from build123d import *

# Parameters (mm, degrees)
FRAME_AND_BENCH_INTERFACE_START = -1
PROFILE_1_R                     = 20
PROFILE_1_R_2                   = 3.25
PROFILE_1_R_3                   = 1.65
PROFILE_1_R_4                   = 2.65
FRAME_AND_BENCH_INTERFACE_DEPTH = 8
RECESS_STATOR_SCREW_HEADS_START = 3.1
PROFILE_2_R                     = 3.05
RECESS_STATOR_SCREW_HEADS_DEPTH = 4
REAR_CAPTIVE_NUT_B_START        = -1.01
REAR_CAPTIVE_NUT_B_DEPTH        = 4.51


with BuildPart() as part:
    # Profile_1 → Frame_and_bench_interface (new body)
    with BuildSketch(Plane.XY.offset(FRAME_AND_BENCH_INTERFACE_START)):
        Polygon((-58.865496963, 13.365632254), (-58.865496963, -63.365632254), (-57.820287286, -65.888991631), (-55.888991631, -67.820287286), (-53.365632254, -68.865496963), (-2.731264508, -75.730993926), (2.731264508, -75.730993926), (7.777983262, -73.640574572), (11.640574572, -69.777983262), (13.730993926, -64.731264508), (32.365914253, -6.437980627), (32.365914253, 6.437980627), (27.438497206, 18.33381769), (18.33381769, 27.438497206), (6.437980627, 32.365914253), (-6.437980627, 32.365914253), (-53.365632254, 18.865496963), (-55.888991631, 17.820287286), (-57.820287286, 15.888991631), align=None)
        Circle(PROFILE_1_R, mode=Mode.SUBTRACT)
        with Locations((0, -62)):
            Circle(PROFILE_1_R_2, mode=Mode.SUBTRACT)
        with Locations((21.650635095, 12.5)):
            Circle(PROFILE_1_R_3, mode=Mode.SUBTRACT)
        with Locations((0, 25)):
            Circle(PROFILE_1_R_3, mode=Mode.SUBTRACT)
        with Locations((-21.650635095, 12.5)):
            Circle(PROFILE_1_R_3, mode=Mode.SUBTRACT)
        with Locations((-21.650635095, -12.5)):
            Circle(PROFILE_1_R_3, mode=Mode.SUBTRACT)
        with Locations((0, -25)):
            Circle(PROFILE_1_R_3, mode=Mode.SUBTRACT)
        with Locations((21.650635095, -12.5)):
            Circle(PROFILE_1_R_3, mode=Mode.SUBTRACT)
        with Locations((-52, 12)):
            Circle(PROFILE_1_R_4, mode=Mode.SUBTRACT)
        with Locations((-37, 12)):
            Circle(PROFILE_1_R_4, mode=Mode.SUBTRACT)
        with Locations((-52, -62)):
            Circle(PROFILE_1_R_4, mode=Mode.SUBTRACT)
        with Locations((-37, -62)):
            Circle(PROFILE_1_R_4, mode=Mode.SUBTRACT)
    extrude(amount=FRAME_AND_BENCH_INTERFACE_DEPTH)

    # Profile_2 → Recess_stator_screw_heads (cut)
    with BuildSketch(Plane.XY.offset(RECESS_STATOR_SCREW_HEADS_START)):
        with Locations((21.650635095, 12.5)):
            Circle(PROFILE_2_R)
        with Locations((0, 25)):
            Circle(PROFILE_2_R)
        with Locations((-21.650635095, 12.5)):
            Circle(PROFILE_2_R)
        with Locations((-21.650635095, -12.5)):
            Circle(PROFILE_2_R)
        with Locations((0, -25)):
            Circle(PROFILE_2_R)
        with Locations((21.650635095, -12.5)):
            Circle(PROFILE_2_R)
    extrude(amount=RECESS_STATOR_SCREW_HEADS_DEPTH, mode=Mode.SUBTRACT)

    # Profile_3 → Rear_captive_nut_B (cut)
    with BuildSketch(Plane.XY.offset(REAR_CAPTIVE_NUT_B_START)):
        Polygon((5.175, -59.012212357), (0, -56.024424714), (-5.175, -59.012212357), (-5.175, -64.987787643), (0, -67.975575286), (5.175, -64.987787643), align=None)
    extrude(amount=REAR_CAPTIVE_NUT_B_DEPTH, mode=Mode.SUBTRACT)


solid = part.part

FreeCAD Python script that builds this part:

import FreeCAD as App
import Part
import Sketcher
from FreeCAD import Vector
Q = App.Units.Quantity

doc = App.newDocument("Part")
body = doc.addObject("PartDesign::Body", "Body")

sketch1 = body.newObject("Sketcher::SketchObject", "Sketch")
sketch1.AttachmentSupport = (doc.getObject("XY_Plane"), [""])
sketch1.MapMode = "FlatFace"
sketch1.AttachmentOffset = App.Placement(Vector(0, 0, -1), App.Rotation())
sketch1.addGeometry(Part.LineSegment(Vector(-58.9, 13.4, 0), Vector(-58.9, -63.4, 0)), False)
sketch1.addGeometry(Part.LineSegment(Vector(-58.9, -63.4, 0), Vector(-57.8, -65.9, 0)), False)
sketch1.addGeometry(Part.LineSegment(Vector(-57.8, -65.9, 0), Vector(-55.9, -67.8, 0)), False)
sketch1.addGeometry(Part.LineSegment(Vector(-55.9, -67.8, 0), Vector(-53.4, -68.9, 0)), False)
sketch1.addGeometry(Part.LineSegment(Vector(-53.4, -68.9, 0), Vector(-2.7, -75.7, 0)), False)
sketch1.addGeometry(Part.LineSegment(Vector(-2.7, -75.7, 0), Vector(2.7, -75.7, 0)), False)
sketch1.addGeometry(Part.LineSegment(Vector(2.7, -75.7, 0), Vector(7.8, -73.6, 0)), False)
sketch1.addGeometry(Part.LineSegment(Vector(7.8, -73.6, 0), Vector(11.6, -69.8, 0)), False)
sketch1.addGeometry(Part.LineSegment(Vector(11.6, -69.8, 0), Vector(13.7, -64.7, 0)), False)
sketch1.addGeometry(Part.LineSegment(Vector(13.7, -64.7, 0), Vector(32.4, -6.4, 0)), False)
sketch1.addGeometry(Part.LineSegment(Vector(32.4, -6.4, 0), Vector(32.4, 6.4, 0)), False)
sketch1.addGeometry(Part.LineSegment(Vector(32.4, 6.4, 0), Vector(27.4, 18.3, 0)), False)
sketch1.addGeometry(Part.LineSegment(Vector(27.4, 18.3, 0), Vector(18.3, 27.4, 0)), False)
sketch1.addGeometry(Part.LineSegment(Vector(18.3, 27.4, 0), Vector(6.4, 32.4, 0)), False)
sketch1.addGeometry(Part.LineSegment(Vector(6.4, 32.4, 0), Vector(-6.4, 32.4, 0)), False)
sketch1.addGeometry(Part.LineSegment(Vector(-6.4, 32.4, 0), Vector(-53.4, 18.9, 0)), False)
sketch1.addGeometry(Part.LineSegment(Vector(-53.4, 18.9, 0), Vector(-55.9, 17.8, 0)), False)
sketch1.addGeometry(Part.LineSegment(Vector(-55.9, 17.8, 0), Vector(-57.8, 15.9, 0)), False)
sketch1.addGeometry(Part.LineSegment(Vector(-57.8, 15.9, 0), Vector(-58.9, 13.4, 0)), False)
sketch1.addGeometry(Part.Circle(Vector(-52, -62, 0), Vector(0, 0, 1), 2.6), False)
sketch1.addGeometry(Part.Circle(Vector(-37, -62, 0), Vector(0, 0, 1), 2.6), False)
sketch1.addGeometry(Part.Circle(Vector(0, -62, 0), Vector(0, 0, 1), 3.2), False)
sketch1.addGeometry(Part.Circle(Vector(0, -25, 0), Vector(0, 0, 1), 1.6), False)
sketch1.addGeometry(Part.Circle(Vector(-21.7, -12.5, 0), Vector(0, 0, 1), 1.6), False)
sketch1.addGeometry(Part.Circle(Vector(-52, 12, 0), Vector(0, 0, 1), 2.6), False)
sketch1.addGeometry(Part.Circle(Vector(-37, 12, 0), Vector(0, 0, 1), 2.6), False)
sketch1.addGeometry(Part.Circle(Vector(-21.7, 12.5, 0), Vector(0, 0, 1), 1.6), False)
sketch1.addGeometry(Part.Circle(Vector(0, 0, 0), Vector(0, 0, 1), 20), False)
sketch1.addGeometry(Part.Circle(Vector(21.7, -12.5, 0), Vector(0, 0, 1), 1.6), False)
sketch1.addGeometry(Part.Circle(Vector(0, 25, 0), Vector(0, 0, 1), 1.6), False)
sketch1.addGeometry(Part.Circle(Vector(21.7, 12.5, 0), Vector(0, 0, 1), 1.6), False)
sketch1.addConstraint(Sketcher.Constraint("Coincident", 0, 2, 1, 1))
sketch1.addConstraint(Sketcher.Constraint("Coincident", 1, 2, 2, 1))
sketch1.addConstraint(Sketcher.Constraint("Coincident", 2, 2, 3, 1))
sketch1.addConstraint(Sketcher.Constraint("Coincident", 3, 2, 4, 1))
sketch1.addConstraint(Sketcher.Constraint("Coincident", 4, 2, 5, 1))
sketch1.addConstraint(Sketcher.Constraint("Coincident", 5, 2, 6, 1))
sketch1.addConstraint(Sketcher.Constraint("Coincident", 6, 2, 7, 1))
sketch1.addConstraint(Sketcher.Constraint("Coincident", 7, 2, 8, 1))
sketch1.addConstraint(Sketcher.Constraint("Coincident", 8, 2, 9, 1))
sketch1.addConstraint(Sketcher.Constraint("Coincident", 9, 2, 10, 1))
sketch1.addConstraint(Sketcher.Constraint("Coincident", 10, 2, 11, 1))
sketch1.addConstraint(Sketcher.Constraint("Coincident", 11, 2, 12, 1))
sketch1.addConstraint(Sketcher.Constraint("Coincident", 12, 2, 13, 1))
sketch1.addConstraint(Sketcher.Constraint("Coincident", 13, 2, 14, 1))
sketch1.addConstraint(Sketcher.Constraint("Coincident", 14, 2, 15, 1))
sketch1.addConstraint(Sketcher.Constraint("Coincident", 15, 2, 16, 1))
sketch1.addConstraint(Sketcher.Constraint("Coincident", 16, 2, 17, 1))
sketch1.addConstraint(Sketcher.Constraint("Coincident", 17, 2, 18, 1))
sketch1.addConstraint(Sketcher.Constraint("Coincident", 18, 2, 0, 1))
sketch1.addConstraint(Sketcher.Constraint("Vertical", 0))
sketch1.addConstraint(Sketcher.Constraint("Horizontal", 5))
sketch1.addConstraint(Sketcher.Constraint("Vertical", 10))
sketch1.addConstraint(Sketcher.Constraint("Horizontal", 14))
sketch1.addConstraint(Sketcher.Constraint("Coincident", 27, 3, -1, 1))
sketch1.addConstraint(Sketcher.Constraint("Equal", 19, 20))
sketch1.addConstraint(Sketcher.Constraint("Equal", 22, 23))
sketch1.addConstraint(Sketcher.Constraint("Equal", 20, 24))
sketch1.addConstraint(Sketcher.Constraint("Equal", 24, 25))
sketch1.addConstraint(Sketcher.Constraint("Equal", 23, 26))
sketch1.addConstraint(Sketcher.Constraint("Equal", 26, 28))
sketch1.addConstraint(Sketcher.Constraint("Equal", 28, 29))
sketch1.addConstraint(Sketcher.Constraint("Equal", 29, 30))
sketch1.addConstraint(Sketcher.Constraint("Symmetric", 26, 3, 28, 3, -1, 1))
sketch1.addConstraint(Sketcher.Constraint("Symmetric", 22, 3, 29, 3, -1, 1))
sketch1.addConstraint(Sketcher.Constraint("Symmetric", 23, 3, 30, 3, -1, 1))
sketch1.addConstraint(Sketcher.Constraint("Symmetric", 23, 3, 28, 3, -2))
sketch1.addConstraint(Sketcher.Constraint("PointOnObject", 21, 3, -2))
sketch1.addConstraint(Sketcher.Constraint("PointOnObject", 22, 3, -2))
sketch1.addConstraint(Sketcher.Constraint("Perpendicular", 1, 6))
sketch1.addConstraint(Sketcher.Constraint("Perpendicular", 2, 7))
sketch1.addConstraint(Sketcher.Constraint("Perpendicular", 3, 8))
sketch1.addConstraint(Sketcher.Constraint("Perpendicular", 6, 11))
sketch1.addConstraint(Sketcher.Constraint("Perpendicular", 7, 12))
sketch1.addConstraint(Sketcher.Constraint("Perpendicular", 8, 13))
sketch1.addConstraint(Sketcher.Constraint("Perpendicular", 11, 16))
sketch1.addConstraint(Sketcher.Constraint("Perpendicular", 12, 17))
sketch1.addConstraint(Sketcher.Constraint("Perpendicular", 13, 18))
sketch1.addConstraint(Sketcher.Constraint("Horizontal", 19, 3, 20, 3))
sketch1.addConstraint(Sketcher.Constraint("Horizontal", 20, 3, 21, 3))
sketch1.addConstraint(Sketcher.Constraint("Horizontal", 24, 3, 25, 3))
sketch1.addConstraint(Sketcher.Constraint("Vertical", 19, 3, 24, 3))
sketch1.addConstraint(Sketcher.Constraint("Vertical", 20, 3, 25, 3))
sketch1.addConstraint(Sketcher.Constraint("Vertical", 3, 2, 15, 2))
sketch1.addConstraint(Sketcher.Constraint("Vertical", 2, 2, 16, 2))
sketch1.addConstraint(Sketcher.Constraint("Vertical", 1, 2, 17, 2))
sketch1.addConstraint(Sketcher.Constraint("Equal", 14, 10))
sketch1.addConstraint(Sketcher.Constraint("Equal", 1, 2))
sketch1.addConstraint(Sketcher.Constraint("Equal", 2, 3))
sketch1.addConstraint(Sketcher.Constraint("Equal", 6, 7))
sketch1.addConstraint(Sketcher.Constraint("Equal", 7, 8))
sketch1.addConstraint(Sketcher.Constraint("Equal", 11, 12))
sketch1.addConstraint(Sketcher.Constraint("Equal", 12, 13))
sketch1.addConstraint(Sketcher.Constraint("Equal", 3, 16))
sketch1.addConstraint(Sketcher.Constraint("Equal", 16, 17))
sketch1.addConstraint(Sketcher.Constraint("Diameter", 27, 40.0))
sketch1.addConstraint(Sketcher.Constraint("Diameter", 19, 5.3))
sketch1.addConstraint(Sketcher.Constraint("Diameter", 21, 6.5))
sketch1.addConstraint(Sketcher.Constraint("Diameter", 22, 3.3))
sketch1.addConstraint(Sketcher.Constraint("DistanceX", 19, 3, -1, 1, 52.0))
sketch1.addConstraint(Sketcher.Constraint("DistanceY", 19, 3, -1, 1, 62.0))
sketch1.addConstraint(Sketcher.Constraint("DistanceX", 20, 3, -1, 1, 37.0))
sketch1.addConstraint(Sketcher.Constraint("DistanceY", 22, 3, -1, 1, 25.0))
sketch1.addConstraint(Sketcher.Constraint("DistanceY", -1, 1, 24, 3, 12.0))
sketch1.addConstraint(Sketcher.Constraint("Angle", 1, Q("-67.5 deg")))
sketch1.addConstraint(Sketcher.Constraint("DistanceY", 23, 3, 26, 3, 25.0))
sketch1.addConstraint(Sketcher.Constraint("DistanceX", 5, 1, 5, 2, 5.462529))
sketch1.addConstraint(Sketcher.Constraint("DistanceX", 14, 2, 14, 1, 12.875961))
sketch1.addConstraint(Sketcher.Constraint("DistanceY", 9, 2, 11, 2, 24.771798))
sketch1.addConstraint(Sketcher.Constraint("Distance", 6, 5.462529))
sketch1.addConstraint(Sketcher.Constraint("Distance", 15, 48.830992))
sketch1.addConstraint(Sketcher.Constraint("DistanceY", 0, 2, 0, 1, 76.731265))
sketch1.addConstraint(Sketcher.Constraint("DistanceY", 1, 2, -1, 1, 65.888992))
sketch1.addConstraint(Sketcher.Constraint("DistanceX", 2, 2, -1, 1, 55.888992))
sketch1.addConstraint(Sketcher.Constraint("DistanceY", 9, 2, -1, 1, 6.437981))
sketch1.addConstraint(Sketcher.Constraint("DistanceX", -1, 1, 13, 2, 6.437981))
sketch1.addConstraint(Sketcher.Constraint("DistanceX", 23, 3, 28, 3, 43.30127))
sketch1.addConstraint(Sketcher.Constraint("Distance", 4, 51.097693))
sketch1.addConstraint(Sketcher.Constraint("Distance", 9, 61.199405))
pad1 = body.newObject("PartDesign::Pad", "Pad")
pad1.Profile = sketch1
pad1.Length = 8

sketch2 = body.newObject("Sketcher::SketchObject", "Sketch001")
sketch2.AttachmentSupport = (doc.getObject("XY_Plane"), [""])
sketch2.MapMode = "FlatFace"
sketch2.AttachmentOffset = App.Placement(Vector(0, 0, 3.1), App.Rotation())
sketch2.addGeometry(Part.Circle(Vector(21.7, 12.5, 0), Vector(0, 0, 1), 3), False)
sketch2.addGeometry(Part.Circle(Vector(0, 25, 0), Vector(0, 0, 1), 3), False)
sketch2.addGeometry(Part.Circle(Vector(-21.7, 12.5, 0), Vector(0, 0, 1), 3), False)
sketch2.addGeometry(Part.Circle(Vector(-21.7, -12.5, 0), Vector(0, 0, 1), 3), False)
sketch2.addGeometry(Part.Circle(Vector(0, -25, 0), Vector(0, 0, 1), 3), False)
sketch2.addGeometry(Part.Circle(Vector(21.7, -12.5, 0), Vector(0, 0, 1), 3), False)
sketch2.addConstraint(Sketcher.Constraint("Equal", 0, 1))
sketch2.addConstraint(Sketcher.Constraint("Equal", 1, 2))
sketch2.addConstraint(Sketcher.Constraint("Equal", 2, 3))
sketch2.addConstraint(Sketcher.Constraint("Equal", 3, 4))
sketch2.addConstraint(Sketcher.Constraint("Equal", 4, 5))
sketch2.addConstraint(Sketcher.Constraint("Symmetric", 0, 3, 3, 3, -1, 1))
sketch2.addConstraint(Sketcher.Constraint("Symmetric", 1, 3, 4, 3, -1, 1))
sketch2.addConstraint(Sketcher.Constraint("Symmetric", 2, 3, 5, 3, -1, 1))
sketch2.addConstraint(Sketcher.Constraint("Symmetric", 0, 3, 2, 3, -2))
sketch2.addConstraint(Sketcher.Constraint("PointOnObject", 1, 3, -2))
sketch2.addConstraint(Sketcher.Constraint("Diameter", 0, 6.1))
sketch2.addConstraint(Sketcher.Constraint("DistanceY", -1, 1, 1, 3, 25.0))
sketch2.addConstraint(Sketcher.Constraint("DistanceY", 3, 3, 2, 3, 25.0))
sketch2.addConstraint(Sketcher.Constraint("DistanceX", 2, 3, 0, 3, 43.30127))
pocket1 = body.newObject("PartDesign::Pocket", "Pocket")
pocket1.Profile = sketch2
pocket1.Length = 4
pocket1.Reversed = True

sketch3 = body.newObject("Sketcher::SketchObject", "Sketch002")
sketch3.AttachmentSupport = (doc.getObject("XY_Plane"), [""])
sketch3.MapMode = "FlatFace"
sketch3.AttachmentOffset = App.Placement(Vector(0, 0, -1.01), App.Rotation())
sketch3.addGeometry(Part.LineSegment(Vector(5, -59, 0), Vector(0, -56, 0)), False)
sketch3.addGeometry(Part.LineSegment(Vector(0, -56, 0), Vector(-5, -59, 0)), False)
sketch3.addGeometry(Part.LineSegment(Vector(-5, -59, 0), Vector(-5, -65, 0)), False)
sketch3.addGeometry(Part.LineSegment(Vector(-5, -65, 0), Vector(0, -68, 0)), False)
sketch3.addGeometry(Part.LineSegment(Vector(0, -68, 0), Vector(5, -65, 0)), False)
sketch3.addGeometry(Part.LineSegment(Vector(5, -65, 0), Vector(5, -59, 0)), False)
sketch3.addConstraint(Sketcher.Constraint("Coincident", 0, 2, 1, 1))
sketch3.addConstraint(Sketcher.Constraint("Coincident", 1, 2, 2, 1))
sketch3.addConstraint(Sketcher.Constraint("Coincident", 2, 2, 3, 1))
sketch3.addConstraint(Sketcher.Constraint("Coincident", 3, 2, 4, 1))
sketch3.addConstraint(Sketcher.Constraint("Coincident", 4, 2, 5, 1))
sketch3.addConstraint(Sketcher.Constraint("Coincident", 5, 2, 0, 1))
sketch3.addConstraint(Sketcher.Constraint("Vertical", 2))
sketch3.addConstraint(Sketcher.Constraint("Vertical", 5))
sketch3.addConstraint(Sketcher.Constraint("Symmetric", 2, 2, 4, 2, -2))
sketch3.addConstraint(Sketcher.Constraint("PointOnObject", 0, 2, -2))
sketch3.addConstraint(Sketcher.Constraint("PointOnObject", 3, 2, -2))
sketch3.addConstraint(Sketcher.Constraint("Parallel", 0, 3))
sketch3.addConstraint(Sketcher.Constraint("Parallel", 1, 4))
sketch3.addConstraint(Sketcher.Constraint("Angle", 0, Q("150 deg")))
sketch3.addConstraint(Sketcher.Constraint("DistanceX", 2, 2, 4, 2, 10.35))
sketch3.addConstraint(Sketcher.Constraint("DistanceY", 2, 2, 2, 1, 5.975575))
sketch3.addConstraint(Sketcher.Constraint("DistanceY", 0, 2, -1, 1, 56.024425))
pocket2 = body.newObject("PartDesign::Pocket", "Pocket001")
pocket2.Profile = sketch3
pocket2.Length = 4.51
pocket2.Reversed = True

doc.recompute()
